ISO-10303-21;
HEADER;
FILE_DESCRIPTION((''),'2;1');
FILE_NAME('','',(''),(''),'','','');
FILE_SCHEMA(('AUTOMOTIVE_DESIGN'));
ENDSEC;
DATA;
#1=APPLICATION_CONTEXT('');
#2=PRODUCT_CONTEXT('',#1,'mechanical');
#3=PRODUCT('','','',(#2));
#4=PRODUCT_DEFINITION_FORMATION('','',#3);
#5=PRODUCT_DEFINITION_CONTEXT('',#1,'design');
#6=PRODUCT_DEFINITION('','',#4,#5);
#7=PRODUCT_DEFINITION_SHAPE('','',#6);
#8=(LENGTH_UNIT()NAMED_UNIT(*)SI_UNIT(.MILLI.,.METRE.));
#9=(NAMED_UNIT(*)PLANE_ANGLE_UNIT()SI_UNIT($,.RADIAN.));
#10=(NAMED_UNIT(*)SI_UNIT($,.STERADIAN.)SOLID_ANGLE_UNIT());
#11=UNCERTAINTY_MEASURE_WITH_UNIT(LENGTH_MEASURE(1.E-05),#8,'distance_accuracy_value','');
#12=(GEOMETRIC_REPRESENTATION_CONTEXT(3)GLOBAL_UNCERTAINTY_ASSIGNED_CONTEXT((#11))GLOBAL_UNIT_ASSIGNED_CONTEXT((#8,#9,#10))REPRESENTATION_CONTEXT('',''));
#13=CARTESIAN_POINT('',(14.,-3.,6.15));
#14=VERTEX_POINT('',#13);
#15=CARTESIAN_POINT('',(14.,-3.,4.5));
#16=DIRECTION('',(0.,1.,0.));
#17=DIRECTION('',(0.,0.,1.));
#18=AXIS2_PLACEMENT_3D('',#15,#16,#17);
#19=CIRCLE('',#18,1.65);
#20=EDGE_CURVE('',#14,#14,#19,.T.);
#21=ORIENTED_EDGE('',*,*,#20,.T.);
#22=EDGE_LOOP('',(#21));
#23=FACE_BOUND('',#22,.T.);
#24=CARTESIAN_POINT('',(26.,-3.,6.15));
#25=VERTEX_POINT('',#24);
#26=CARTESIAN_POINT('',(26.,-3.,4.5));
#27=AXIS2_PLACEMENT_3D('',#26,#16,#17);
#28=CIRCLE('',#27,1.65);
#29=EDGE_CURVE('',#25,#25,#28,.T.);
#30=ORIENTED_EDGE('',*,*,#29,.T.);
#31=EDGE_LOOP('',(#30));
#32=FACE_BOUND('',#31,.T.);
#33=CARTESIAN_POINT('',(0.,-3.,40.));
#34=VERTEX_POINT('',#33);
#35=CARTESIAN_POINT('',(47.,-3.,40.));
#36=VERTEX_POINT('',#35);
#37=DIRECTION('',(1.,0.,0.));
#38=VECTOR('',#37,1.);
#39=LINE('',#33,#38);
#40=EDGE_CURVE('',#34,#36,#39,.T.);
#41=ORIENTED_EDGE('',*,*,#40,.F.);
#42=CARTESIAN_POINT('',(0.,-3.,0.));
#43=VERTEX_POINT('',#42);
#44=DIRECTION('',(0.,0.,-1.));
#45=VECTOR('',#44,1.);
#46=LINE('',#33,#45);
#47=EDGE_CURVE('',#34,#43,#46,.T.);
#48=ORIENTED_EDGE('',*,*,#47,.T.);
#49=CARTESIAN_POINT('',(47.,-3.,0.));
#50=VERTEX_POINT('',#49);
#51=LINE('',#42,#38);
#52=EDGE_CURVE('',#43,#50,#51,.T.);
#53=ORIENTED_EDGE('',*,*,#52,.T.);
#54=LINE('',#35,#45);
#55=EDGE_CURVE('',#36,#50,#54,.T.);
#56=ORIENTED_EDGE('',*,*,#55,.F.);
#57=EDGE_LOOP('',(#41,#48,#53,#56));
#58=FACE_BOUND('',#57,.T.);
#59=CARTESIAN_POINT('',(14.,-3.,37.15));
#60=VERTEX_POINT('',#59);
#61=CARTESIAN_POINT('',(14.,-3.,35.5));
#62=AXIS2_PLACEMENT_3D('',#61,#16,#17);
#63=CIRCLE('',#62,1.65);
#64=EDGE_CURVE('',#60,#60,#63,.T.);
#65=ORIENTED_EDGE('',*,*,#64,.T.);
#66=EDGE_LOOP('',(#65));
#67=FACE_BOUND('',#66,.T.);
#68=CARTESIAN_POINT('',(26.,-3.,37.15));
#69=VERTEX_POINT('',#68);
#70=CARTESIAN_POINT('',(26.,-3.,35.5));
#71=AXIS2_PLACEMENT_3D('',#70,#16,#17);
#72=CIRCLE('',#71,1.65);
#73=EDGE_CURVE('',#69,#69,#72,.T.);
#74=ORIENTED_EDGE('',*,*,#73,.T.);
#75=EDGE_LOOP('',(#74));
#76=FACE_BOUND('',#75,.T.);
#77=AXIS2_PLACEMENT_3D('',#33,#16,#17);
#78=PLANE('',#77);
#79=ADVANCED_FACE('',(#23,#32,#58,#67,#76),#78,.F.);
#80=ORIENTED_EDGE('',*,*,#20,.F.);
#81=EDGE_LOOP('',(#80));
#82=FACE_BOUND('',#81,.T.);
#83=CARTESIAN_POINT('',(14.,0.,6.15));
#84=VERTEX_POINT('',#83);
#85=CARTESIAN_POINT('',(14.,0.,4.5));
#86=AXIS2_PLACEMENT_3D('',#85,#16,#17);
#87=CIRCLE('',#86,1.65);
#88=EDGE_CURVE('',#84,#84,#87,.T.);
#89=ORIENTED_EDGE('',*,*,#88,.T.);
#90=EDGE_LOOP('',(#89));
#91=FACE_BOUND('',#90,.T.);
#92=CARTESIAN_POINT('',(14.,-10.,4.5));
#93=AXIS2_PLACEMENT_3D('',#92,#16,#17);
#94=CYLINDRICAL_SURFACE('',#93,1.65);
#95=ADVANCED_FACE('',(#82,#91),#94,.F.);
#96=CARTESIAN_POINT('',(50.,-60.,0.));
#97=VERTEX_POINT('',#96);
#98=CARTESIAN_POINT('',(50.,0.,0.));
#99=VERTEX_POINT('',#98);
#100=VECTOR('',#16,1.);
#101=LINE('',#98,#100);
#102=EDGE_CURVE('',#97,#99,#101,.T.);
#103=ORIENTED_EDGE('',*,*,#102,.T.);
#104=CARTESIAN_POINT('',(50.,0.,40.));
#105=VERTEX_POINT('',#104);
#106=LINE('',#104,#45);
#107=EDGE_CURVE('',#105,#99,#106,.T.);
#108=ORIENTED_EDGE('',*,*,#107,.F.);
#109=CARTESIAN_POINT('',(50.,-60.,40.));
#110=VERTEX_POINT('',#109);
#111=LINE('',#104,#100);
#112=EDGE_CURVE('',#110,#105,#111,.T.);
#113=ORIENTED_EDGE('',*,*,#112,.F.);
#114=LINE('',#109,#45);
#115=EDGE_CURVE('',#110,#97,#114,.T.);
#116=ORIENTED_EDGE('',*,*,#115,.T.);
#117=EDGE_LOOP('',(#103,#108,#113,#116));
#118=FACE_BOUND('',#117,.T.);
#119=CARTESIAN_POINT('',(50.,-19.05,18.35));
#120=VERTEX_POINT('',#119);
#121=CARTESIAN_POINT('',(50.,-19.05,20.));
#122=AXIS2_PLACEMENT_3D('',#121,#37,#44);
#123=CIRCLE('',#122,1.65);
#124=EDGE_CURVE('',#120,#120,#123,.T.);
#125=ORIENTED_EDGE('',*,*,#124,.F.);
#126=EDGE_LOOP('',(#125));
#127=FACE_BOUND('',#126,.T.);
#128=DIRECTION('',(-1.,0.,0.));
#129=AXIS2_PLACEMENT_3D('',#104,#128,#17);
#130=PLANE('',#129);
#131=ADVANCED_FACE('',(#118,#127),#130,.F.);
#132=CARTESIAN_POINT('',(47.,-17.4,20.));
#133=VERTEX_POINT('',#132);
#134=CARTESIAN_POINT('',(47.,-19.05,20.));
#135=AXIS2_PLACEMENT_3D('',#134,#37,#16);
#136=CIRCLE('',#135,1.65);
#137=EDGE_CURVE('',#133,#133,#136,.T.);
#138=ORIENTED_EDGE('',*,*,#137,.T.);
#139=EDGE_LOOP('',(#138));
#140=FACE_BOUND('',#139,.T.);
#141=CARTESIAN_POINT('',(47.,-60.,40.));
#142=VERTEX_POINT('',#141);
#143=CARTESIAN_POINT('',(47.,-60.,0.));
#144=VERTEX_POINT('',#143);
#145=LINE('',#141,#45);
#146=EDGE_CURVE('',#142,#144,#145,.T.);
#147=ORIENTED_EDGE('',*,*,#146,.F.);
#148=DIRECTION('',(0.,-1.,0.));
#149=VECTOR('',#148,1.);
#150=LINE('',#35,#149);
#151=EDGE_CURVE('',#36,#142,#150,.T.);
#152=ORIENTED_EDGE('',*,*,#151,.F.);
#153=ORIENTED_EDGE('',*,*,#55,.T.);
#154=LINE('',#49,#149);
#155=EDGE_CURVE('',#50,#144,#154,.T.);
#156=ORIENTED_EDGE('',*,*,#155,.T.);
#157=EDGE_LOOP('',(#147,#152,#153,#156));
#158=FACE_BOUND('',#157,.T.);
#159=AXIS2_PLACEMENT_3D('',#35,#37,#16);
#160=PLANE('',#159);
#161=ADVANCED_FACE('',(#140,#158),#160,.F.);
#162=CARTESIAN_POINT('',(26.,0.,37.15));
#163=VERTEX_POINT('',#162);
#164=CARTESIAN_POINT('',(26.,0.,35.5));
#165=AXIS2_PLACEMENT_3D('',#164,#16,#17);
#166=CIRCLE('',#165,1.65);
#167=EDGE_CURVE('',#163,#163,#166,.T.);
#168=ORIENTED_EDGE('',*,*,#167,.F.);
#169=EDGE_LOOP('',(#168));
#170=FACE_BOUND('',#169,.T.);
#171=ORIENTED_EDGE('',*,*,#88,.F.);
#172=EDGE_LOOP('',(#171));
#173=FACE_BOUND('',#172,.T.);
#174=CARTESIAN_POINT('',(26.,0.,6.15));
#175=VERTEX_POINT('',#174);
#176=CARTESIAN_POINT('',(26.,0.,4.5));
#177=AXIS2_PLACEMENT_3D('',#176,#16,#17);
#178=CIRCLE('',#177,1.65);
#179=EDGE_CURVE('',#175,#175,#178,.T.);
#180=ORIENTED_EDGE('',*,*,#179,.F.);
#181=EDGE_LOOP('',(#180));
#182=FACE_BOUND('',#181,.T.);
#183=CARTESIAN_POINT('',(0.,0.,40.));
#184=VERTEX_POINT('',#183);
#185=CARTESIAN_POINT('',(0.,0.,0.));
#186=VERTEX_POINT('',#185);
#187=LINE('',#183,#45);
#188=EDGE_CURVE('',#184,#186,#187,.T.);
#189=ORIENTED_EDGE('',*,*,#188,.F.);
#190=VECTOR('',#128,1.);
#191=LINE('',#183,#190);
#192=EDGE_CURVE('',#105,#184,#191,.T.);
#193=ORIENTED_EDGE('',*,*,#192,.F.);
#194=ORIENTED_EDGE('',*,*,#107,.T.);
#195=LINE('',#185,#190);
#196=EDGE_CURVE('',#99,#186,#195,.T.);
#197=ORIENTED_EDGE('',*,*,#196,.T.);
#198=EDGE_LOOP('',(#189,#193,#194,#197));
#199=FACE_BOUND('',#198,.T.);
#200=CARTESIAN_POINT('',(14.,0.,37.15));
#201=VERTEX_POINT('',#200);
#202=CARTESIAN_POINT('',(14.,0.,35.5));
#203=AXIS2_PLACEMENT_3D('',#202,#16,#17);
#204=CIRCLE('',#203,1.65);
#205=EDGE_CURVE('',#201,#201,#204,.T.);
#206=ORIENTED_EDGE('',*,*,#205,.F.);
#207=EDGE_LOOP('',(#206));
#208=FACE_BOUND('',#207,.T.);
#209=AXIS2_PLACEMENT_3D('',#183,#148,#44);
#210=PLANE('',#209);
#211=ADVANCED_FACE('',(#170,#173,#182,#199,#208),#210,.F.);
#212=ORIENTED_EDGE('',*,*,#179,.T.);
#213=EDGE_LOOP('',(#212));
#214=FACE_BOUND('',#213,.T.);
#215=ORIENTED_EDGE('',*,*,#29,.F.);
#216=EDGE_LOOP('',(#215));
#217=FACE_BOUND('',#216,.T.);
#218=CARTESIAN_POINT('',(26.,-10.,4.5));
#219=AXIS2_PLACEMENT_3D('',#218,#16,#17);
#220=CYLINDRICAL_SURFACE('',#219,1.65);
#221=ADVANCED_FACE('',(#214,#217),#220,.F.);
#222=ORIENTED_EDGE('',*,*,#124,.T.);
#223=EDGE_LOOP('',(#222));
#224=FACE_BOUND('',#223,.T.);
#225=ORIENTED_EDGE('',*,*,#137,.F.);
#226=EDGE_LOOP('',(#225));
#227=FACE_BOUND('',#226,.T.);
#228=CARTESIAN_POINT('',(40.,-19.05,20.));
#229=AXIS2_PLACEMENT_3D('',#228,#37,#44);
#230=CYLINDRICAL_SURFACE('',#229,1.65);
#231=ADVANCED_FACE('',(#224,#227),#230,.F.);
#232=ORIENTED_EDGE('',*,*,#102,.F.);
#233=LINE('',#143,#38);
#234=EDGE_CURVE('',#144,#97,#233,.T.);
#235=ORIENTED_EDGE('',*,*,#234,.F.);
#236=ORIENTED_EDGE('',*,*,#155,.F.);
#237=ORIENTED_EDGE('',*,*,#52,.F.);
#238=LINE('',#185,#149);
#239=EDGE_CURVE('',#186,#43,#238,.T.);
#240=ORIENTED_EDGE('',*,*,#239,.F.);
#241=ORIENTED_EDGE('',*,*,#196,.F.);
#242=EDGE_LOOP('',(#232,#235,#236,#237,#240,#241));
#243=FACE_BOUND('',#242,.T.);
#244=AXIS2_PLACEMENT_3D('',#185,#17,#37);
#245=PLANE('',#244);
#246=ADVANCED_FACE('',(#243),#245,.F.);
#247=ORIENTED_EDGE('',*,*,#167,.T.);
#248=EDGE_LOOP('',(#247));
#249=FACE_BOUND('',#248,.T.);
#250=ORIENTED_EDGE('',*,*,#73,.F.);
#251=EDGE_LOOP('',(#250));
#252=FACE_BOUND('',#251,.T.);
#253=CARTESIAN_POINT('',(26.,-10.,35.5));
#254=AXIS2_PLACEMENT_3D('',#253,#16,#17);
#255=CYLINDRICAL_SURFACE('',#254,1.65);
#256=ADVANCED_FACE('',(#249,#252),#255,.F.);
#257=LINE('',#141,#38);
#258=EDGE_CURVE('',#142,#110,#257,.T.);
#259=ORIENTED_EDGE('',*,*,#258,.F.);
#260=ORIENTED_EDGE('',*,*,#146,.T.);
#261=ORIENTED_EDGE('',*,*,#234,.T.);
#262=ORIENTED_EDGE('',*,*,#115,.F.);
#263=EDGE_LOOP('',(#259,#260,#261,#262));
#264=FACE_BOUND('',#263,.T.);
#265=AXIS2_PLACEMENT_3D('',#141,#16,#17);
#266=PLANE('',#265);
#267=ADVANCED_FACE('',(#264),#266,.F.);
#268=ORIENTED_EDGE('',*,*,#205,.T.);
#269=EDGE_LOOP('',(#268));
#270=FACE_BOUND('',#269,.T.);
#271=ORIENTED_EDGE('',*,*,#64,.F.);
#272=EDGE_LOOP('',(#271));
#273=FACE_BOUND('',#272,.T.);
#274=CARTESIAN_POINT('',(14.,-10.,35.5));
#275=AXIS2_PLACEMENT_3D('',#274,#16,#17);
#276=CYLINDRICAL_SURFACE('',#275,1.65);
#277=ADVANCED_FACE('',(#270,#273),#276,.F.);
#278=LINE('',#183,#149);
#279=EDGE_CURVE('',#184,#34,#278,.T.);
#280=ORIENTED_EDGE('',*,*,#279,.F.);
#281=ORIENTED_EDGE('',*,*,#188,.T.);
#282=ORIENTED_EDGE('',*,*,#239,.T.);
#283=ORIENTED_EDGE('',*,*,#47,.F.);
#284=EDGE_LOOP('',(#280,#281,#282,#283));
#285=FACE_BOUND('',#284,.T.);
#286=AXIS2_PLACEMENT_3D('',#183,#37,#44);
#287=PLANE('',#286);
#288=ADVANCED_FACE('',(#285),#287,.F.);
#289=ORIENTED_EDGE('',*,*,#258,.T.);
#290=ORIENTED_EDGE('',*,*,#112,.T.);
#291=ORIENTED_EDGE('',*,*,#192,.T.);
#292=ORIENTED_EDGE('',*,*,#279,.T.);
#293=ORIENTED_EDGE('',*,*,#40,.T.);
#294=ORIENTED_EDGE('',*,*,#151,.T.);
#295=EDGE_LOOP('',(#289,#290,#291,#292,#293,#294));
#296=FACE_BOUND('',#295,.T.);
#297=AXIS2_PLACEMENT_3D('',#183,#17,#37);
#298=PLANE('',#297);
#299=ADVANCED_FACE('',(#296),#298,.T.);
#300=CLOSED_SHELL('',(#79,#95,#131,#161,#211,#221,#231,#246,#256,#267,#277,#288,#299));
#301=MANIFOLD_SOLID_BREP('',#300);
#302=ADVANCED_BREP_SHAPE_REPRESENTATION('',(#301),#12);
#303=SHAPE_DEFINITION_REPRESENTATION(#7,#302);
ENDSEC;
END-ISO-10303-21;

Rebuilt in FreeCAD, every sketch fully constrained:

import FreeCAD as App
import Part
import Sketcher
from FreeCAD import Vector


def add_polygon(sketch, points):
    """Adds a closed chain of lines whose ends are joined by coincident constraints."""
    first, n = sketch.GeometryCount, len(points)
    for a, b in zip(points, points[1:] + points[:1]):
        sketch.addGeometry(Part.LineSegment(App.Vector(*a, 0), App.Vector(*b, 0)), False)
    for i in range(n):
        sketch.addConstraint(Sketcher.Constraint("Coincident", first + i, 2, first + (i + 1) % n, 1))

doc = App.newDocument("Part")
body = doc.addObject("PartDesign::Body", "Body")

# Sketch on XY plane
sketch1 = body.newObject("Sketcher::SketchObject", "Sketch")
sketch1.AttachmentSupport = (doc.getObject("XY_Plane"), [""])
sketch1.MapMode = "FlatFace"
add_polygon(sketch1, [(50, 0), (0, 0), (0, -3), (47, -3), (47, -60), (50, -60)])  # lines 0-5
sketch1.addConstraint([
    Sketcher.Constraint("Horizontal", 0),
    Sketcher.Constraint("Vertical", 1),
    Sketcher.Constraint("Horizontal", 2),
    Sketcher.Constraint("Vertical", 3),
    Sketcher.Constraint("Horizontal", 4),
    Sketcher.Constraint("Vertical", 5),
    Sketcher.Constraint("Coincident", 0, 2, -1, 1),
    Sketcher.Constraint("Equal", 4, 1),
    Sketcher.Constraint("DistanceX", 0, 2, 0, 1, 50.0),
    Sketcher.Constraint("DistanceX", 2, 1, 2, 2, 47.0),
    Sketcher.Constraint("DistanceY", 3, 2, 3, 1, 57.0),
])
pad1 = body.newObject("PartDesign::Pad", "Pad")
pad1.Profile = sketch1
pad1.Length = 40

# Sketch on XZ plane
sketch2 = body.newObject("Sketcher::SketchObject", "Sketch001")
sketch2.AttachmentSupport = (doc.getObject("XZ_Plane"), [""])
sketch2.MapMode = "FlatFace"
sketch2.addGeometry([
    Part.Circle(Vector(14, 4.5, 0), Vector(0, 0, 1), 1.65),
    Part.Circle(Vector(14, 35.5, 0), Vector(0, 0, 1), 1.65),
    Part.Circle(Vector(26, 4.5, 0), Vector(0, 0, 1), 1.65),
    Part.Circle(Vector(26, 35.5, 0), Vector(0, 0, 1), 1.65),
], False)
sketch2.addConstraint([
    Sketcher.Constraint("Equal", 0, 1),
    Sketcher.Constraint("Equal", 1, 2),
    Sketcher.Constraint("Equal", 2, 3),
    Sketcher.Constraint("Horizontal", 0, 3, 2, 3),
    Sketcher.Constraint("Horizontal", 1, 3, 3, 3),
    Sketcher.Constraint("Vertical", 0, 3, 1, 3),
    Sketcher.Constraint("Vertical", 2, 3, 3, 3),
    Sketcher.Constraint("Diameter", 0, 3.3),
    Sketcher.Constraint("DistanceX", -1, 1, 0, 3, 14.0),
    Sketcher.Constraint("DistanceX", -1, 1, 2, 3, 26.0),
    Sketcher.Constraint("DistanceY", 0, 3, 1, 3, 31.0),
    Sketcher.Constraint("DistanceY", -1, 1, 0, 3, 4.5),
])
pocket1 = body.newObject("PartDesign::Pocket", "Pocket")
pocket1.Profile = sketch2
pocket1.Length = 10
pocket1.Reversed = True

# Sketch on YZ plane
sketch3 = body.newObject("Sketcher::SketchObject", "Sketch002")
sketch3.AttachmentSupport = (doc.getObject("YZ_Plane"), [""])
sketch3.MapMode = "FlatFace"
sketch3.AttachmentOffset = App.Placement(Vector(0, 0, 50), App.Rotation())
sketch3.addGeometry(Part.Circle(Vector(-19.05, 20, 0), Vector(0, 0, 1), 1.65), False)
sketch3.addConstraint([
    Sketcher.Constraint("Diameter", 0, 3.3),
    Sketcher.Constraint("DistanceY", -1, 1, 0, 3, 20.0),
    Sketcher.Constraint("DistanceX", 0, 3, -1, 1, 19.05),
])
pocket2 = body.newObject("PartDesign::Pocket", "Pocket001")
pocket2.Profile = sketch3
pocket2.Length = 10

doc.recompute()
